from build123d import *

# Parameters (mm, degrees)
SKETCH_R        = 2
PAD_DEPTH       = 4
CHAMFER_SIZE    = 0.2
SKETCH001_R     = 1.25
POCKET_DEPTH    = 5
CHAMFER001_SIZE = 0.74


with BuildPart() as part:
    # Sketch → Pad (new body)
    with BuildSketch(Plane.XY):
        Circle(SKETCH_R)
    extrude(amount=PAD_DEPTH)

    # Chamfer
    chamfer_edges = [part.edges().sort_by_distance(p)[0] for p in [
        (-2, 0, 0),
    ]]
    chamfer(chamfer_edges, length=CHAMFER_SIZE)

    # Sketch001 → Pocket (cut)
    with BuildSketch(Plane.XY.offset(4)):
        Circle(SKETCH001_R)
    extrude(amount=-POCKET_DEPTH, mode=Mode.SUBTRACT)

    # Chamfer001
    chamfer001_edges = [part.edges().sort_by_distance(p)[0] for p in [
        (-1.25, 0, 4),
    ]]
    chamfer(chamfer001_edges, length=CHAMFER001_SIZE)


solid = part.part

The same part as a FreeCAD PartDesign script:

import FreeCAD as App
import Part
import Sketcher
from FreeCAD import Vector
Q = App.Units.Quantity


def edges_at(feature, points):
    """Names of the edges that pass closest to the given points."""
    edges = feature.Shape.Edges
    near = lambda p: min(range(len(edges)), key=lambda i: edges[i].distToShape(Part.Vertex(*p))[0])
    return sorted({f"Edge{near(p) + 1}" for p in points})

doc = App.newDocument("Part")
params = doc.addObject("Spreadsheet::Sheet", "Params")
for row, (alias, value) in enumerate([
    ("sketch1_diameter", "4 mm"),
    ("pad1_length", "4 mm"),
    ("chamfer_size", "0.2 mm"),
    ("sketch2_diameter", "2.5 mm"),
    ("pocket1_length", "5 mm"),
    ("chamfer2_size", "0.74 mm"),
], start=1):
    params.set(f"A{row}", alias)
    params.set(f"B{row}", "=" + value)
    params.setAlias(f"B{row}", alias)

body = doc.addObject("PartDesign::Body", "Body")

# Sketch on XY plane
sketch1 = body.newObject("Sketcher::SketchObject", "Sketch")
sketch1.AttachmentSupport = (doc.getObject("XY_Plane"), [""])
sketch1.MapMode = "FlatFace"
sketch1.addGeometry(Part.Circle(Vector(0, 0, 0), Vector(0, 0, 1), 2), False)
sketch1.addConstraint([
    Sketcher.Constraint("Coincident", 0, 3, -1, 1),
    Sketcher.Constraint("Diameter", 0, Q("4 mm")),
])
sketch1.setExpression("Constraints[1]", "Params.sketch1_diameter")
pad1 = body.newObject("PartDesign::Pad", "Pad")
pad1.Profile = sketch1
pad1.setExpression("Length", "Params.pad1_length")
doc.recompute()

chamfer = body.newObject("PartDesign::Chamfer", "Chamfer")
chamfer.Base = (pad1, edges_at(pad1, [(-2, 0, 0)]))
chamfer.setExpression("Size", "Params.chamfer_size")

# Sketch on XY plane
sketch2 = body.newObject("Sketcher::SketchObject", "Sketch001")
sketch2.AttachmentSupport = (doc.getObject("XY_Plane"), [""])
sketch2.MapMode = "FlatFace"
sketch2.AttachmentOffset = App.Placement(Vector(0, 0, 4), App.Rotation())
sketch2.addGeometry(Part.Circle(Vector(0, 0, 0), Vector(0, 0, 1), 1.25), False)
sketch2.addConstraint([
    Sketcher.Constraint("Coincident", 0, 3, -1, 1),
    Sketcher.Constraint("Diameter", 0, Q("2.5 mm")),
])
sketch2.setExpression("Constraints[1]", "Params.sketch2_diameter")
pocket1 = body.newObject("PartDesign::Pocket", "Pocket")
pocket1.Profile = sketch2
pocket1.setExpression("Length", "Params.pocket1_length")
doc.recompute()

chamfer2 = body.newObject("PartDesign::Chamfer", "Chamfer001")
chamfer2.Base = (pocket1, edges_at(pocket1, [(-1.25, 0, 4)]))
chamfer2.setExpression("Size", "Params.chamfer2_size")

doc.recompute()
